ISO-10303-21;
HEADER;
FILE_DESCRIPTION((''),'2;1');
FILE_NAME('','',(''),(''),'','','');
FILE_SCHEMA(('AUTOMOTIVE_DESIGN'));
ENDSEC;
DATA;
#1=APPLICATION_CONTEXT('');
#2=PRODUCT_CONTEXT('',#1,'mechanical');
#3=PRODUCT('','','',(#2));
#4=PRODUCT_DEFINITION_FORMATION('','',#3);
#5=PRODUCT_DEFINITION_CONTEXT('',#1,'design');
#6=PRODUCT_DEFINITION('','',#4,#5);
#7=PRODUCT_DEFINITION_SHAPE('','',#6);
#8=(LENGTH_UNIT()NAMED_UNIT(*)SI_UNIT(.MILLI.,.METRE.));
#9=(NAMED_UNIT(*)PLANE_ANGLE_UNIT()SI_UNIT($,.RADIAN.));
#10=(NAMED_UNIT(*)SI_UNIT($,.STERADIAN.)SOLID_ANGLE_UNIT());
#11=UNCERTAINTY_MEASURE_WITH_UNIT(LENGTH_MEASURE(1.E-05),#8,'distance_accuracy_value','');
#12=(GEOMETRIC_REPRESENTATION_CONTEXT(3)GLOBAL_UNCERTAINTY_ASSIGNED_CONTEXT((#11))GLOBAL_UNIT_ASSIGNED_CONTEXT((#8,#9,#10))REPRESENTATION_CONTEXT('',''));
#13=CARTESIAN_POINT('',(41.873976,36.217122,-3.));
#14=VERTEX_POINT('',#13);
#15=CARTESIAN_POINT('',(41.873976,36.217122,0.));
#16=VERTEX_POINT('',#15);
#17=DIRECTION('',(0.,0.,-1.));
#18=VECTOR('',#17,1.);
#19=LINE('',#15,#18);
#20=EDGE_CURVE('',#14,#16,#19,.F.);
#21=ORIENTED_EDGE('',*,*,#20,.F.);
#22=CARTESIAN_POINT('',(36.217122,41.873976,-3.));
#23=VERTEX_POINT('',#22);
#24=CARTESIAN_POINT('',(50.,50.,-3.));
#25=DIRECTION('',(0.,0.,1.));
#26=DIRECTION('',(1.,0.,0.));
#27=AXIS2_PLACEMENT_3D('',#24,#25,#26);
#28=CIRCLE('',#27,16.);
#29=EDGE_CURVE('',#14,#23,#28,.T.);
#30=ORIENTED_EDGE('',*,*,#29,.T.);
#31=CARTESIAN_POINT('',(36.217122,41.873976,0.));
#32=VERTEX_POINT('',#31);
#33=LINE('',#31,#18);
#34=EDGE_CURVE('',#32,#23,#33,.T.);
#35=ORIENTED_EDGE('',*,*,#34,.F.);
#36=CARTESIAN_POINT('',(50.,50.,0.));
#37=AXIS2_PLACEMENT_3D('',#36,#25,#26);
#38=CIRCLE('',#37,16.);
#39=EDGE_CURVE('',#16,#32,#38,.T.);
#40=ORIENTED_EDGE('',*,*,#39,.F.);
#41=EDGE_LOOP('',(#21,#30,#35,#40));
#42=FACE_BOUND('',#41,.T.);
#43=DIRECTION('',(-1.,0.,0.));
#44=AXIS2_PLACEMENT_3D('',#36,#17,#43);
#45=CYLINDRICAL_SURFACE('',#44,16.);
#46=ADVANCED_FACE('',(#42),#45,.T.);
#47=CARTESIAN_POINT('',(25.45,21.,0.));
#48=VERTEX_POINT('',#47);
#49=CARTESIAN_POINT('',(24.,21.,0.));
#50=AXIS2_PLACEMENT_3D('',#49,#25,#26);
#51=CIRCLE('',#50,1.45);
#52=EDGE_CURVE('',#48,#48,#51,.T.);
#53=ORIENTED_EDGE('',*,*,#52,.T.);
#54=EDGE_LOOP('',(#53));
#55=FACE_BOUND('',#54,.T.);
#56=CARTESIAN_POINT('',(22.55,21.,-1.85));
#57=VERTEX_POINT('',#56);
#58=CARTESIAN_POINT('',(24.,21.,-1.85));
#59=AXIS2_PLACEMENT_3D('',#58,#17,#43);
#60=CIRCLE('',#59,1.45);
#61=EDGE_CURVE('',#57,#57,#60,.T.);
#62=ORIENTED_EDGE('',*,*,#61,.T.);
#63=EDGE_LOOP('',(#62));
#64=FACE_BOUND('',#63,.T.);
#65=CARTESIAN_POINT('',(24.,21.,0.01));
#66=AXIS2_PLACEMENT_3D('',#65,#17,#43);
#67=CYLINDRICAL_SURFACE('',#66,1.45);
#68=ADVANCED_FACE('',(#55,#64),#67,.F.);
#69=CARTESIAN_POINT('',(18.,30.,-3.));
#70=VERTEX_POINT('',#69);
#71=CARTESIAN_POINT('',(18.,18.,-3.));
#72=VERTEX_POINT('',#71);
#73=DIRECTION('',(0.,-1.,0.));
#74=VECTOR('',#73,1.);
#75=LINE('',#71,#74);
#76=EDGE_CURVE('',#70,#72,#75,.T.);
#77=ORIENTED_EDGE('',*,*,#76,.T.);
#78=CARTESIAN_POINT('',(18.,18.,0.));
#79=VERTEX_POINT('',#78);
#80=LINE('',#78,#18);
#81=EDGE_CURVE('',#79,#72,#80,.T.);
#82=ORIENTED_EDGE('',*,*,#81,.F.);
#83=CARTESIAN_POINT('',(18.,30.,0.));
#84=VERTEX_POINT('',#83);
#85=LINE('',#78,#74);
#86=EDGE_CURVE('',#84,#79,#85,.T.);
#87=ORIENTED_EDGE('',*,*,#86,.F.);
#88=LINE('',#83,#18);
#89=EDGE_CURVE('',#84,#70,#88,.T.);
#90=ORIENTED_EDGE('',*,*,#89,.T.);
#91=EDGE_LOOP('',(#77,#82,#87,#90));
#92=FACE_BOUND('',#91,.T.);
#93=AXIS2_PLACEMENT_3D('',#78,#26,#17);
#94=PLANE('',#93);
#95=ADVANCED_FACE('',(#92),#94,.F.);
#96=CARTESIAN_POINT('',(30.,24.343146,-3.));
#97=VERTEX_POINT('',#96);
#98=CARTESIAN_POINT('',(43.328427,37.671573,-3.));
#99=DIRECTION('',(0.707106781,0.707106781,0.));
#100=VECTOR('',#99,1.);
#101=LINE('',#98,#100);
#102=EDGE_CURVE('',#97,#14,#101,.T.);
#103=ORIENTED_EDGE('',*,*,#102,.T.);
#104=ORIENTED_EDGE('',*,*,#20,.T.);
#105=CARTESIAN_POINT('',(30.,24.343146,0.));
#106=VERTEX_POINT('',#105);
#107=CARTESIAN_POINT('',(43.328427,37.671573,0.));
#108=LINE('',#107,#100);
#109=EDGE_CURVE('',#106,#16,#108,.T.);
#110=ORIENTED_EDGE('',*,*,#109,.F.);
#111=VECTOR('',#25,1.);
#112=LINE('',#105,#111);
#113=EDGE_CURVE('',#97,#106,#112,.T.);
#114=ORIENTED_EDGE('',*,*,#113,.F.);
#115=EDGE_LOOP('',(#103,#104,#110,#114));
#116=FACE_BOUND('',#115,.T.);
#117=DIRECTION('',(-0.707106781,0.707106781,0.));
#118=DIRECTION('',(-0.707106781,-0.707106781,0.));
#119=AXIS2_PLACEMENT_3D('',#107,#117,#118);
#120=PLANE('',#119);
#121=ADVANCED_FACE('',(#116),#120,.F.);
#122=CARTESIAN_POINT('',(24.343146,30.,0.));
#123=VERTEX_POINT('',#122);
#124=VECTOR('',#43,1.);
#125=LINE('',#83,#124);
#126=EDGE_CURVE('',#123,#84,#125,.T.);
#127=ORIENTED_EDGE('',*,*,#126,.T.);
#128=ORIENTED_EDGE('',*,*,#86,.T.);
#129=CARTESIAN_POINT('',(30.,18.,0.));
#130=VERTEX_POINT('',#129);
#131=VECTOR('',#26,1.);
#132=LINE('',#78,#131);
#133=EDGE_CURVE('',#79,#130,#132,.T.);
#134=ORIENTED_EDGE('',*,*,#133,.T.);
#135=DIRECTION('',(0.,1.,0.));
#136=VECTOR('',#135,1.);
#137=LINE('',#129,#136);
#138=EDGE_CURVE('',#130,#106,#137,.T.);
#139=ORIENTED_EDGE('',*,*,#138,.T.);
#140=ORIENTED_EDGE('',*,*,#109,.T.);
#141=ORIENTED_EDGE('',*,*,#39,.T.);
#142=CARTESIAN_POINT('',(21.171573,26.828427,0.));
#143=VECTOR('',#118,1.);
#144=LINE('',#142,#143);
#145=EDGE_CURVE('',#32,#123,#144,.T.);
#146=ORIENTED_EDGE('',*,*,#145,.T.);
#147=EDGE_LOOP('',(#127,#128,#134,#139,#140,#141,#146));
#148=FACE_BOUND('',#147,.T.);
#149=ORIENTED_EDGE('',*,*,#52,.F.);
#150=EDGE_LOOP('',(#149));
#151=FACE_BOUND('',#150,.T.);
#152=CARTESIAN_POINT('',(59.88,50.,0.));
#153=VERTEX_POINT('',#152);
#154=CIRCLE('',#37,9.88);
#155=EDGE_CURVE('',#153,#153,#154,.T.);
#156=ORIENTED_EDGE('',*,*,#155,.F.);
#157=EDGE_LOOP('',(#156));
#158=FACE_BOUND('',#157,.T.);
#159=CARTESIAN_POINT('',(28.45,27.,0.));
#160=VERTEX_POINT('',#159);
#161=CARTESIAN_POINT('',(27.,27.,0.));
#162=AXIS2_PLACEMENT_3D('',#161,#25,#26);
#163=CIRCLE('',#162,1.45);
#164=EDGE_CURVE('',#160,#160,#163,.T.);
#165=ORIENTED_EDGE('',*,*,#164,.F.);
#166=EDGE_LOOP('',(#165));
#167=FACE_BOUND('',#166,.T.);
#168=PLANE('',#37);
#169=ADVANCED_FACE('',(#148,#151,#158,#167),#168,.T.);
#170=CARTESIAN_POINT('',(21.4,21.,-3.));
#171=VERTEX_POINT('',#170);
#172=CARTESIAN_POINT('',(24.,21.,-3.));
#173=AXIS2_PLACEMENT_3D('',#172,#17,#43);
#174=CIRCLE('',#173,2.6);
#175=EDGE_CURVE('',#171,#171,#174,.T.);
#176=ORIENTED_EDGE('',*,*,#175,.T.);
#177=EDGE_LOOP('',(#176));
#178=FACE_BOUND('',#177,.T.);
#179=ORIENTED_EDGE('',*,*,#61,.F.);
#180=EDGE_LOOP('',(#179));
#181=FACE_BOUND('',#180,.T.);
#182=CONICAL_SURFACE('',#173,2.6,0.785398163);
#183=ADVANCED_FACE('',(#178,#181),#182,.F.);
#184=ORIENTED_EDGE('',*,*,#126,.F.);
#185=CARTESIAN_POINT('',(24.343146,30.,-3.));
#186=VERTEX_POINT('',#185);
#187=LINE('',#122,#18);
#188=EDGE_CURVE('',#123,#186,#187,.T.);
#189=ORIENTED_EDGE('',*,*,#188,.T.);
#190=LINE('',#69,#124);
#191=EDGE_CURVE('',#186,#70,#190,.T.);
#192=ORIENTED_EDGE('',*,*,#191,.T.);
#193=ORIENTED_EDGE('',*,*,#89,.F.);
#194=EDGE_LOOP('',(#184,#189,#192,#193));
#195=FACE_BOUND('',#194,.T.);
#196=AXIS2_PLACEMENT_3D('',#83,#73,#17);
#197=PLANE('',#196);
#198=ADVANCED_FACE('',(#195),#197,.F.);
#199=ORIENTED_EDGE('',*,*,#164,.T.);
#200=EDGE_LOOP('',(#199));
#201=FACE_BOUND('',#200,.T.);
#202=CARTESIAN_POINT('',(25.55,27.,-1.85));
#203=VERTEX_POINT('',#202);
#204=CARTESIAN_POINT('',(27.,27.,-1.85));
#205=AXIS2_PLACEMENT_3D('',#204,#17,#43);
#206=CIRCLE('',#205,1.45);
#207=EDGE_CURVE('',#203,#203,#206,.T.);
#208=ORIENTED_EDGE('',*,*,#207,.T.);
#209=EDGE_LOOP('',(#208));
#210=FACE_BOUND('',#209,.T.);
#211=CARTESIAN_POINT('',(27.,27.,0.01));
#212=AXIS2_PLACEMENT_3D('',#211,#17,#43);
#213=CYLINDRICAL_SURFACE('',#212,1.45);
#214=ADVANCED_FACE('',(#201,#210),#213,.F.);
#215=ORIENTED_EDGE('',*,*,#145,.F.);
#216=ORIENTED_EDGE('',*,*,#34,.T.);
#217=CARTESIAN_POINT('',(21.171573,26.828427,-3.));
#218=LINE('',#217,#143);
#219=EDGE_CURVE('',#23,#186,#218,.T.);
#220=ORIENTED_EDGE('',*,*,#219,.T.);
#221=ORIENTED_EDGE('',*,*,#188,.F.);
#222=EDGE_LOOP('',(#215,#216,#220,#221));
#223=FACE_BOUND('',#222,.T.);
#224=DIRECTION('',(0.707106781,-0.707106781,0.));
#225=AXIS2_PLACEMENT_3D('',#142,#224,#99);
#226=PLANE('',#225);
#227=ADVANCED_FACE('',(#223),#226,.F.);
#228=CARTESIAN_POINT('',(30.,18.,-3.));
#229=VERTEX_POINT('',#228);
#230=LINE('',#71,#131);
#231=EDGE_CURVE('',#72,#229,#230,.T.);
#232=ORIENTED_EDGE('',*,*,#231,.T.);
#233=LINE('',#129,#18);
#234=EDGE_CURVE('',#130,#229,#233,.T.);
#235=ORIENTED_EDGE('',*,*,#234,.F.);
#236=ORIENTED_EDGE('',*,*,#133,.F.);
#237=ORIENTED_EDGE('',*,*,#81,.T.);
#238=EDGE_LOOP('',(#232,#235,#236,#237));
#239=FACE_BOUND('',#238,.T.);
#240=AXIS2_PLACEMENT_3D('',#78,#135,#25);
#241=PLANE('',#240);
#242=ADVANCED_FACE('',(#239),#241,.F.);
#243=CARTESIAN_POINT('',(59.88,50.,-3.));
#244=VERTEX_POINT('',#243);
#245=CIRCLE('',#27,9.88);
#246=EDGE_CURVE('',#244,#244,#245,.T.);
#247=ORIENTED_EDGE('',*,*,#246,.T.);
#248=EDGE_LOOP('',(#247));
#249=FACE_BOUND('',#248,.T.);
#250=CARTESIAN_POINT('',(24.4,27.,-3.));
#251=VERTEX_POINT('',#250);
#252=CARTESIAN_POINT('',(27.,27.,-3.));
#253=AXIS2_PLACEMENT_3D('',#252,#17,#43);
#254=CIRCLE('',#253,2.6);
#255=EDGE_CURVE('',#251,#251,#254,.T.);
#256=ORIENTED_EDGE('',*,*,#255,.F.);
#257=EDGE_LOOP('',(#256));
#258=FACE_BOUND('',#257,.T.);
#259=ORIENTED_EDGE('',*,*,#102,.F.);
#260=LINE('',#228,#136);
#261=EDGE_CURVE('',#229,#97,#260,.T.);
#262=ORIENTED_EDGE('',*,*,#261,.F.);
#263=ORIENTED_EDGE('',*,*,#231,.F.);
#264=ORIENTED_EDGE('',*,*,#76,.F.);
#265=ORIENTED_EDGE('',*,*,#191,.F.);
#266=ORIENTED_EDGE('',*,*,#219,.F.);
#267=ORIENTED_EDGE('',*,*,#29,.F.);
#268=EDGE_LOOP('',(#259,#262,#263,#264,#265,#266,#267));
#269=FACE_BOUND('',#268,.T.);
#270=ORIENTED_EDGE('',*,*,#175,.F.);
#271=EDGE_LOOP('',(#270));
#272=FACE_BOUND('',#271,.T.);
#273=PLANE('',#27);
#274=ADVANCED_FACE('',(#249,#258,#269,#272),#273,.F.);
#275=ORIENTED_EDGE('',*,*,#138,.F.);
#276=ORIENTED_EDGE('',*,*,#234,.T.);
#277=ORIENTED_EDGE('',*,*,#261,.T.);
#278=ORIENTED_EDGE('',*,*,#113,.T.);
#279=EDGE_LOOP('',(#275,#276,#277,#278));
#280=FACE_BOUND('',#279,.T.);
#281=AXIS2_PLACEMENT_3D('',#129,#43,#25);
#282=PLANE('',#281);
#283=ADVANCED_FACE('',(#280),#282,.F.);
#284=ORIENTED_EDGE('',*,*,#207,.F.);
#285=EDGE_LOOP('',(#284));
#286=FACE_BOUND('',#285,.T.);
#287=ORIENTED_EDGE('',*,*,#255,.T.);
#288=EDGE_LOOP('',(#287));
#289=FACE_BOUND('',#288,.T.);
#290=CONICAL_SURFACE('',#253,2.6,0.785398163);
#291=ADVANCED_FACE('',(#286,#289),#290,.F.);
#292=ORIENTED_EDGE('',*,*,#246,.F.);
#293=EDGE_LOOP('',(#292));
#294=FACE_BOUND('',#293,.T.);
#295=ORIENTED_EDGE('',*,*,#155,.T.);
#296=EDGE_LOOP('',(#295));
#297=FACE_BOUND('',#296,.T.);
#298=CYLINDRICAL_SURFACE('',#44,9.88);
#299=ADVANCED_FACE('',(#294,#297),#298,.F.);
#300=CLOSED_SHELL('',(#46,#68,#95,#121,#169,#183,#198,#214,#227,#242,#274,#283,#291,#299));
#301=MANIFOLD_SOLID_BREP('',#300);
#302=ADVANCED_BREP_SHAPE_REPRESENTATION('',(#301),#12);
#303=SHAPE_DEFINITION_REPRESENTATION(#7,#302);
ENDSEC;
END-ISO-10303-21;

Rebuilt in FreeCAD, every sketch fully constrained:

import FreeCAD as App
import Part
import Sketcher
Q = App.Units.Quantity


def faces_at(feature, points):
    """Names of the faces that lie closest to the given points."""
    faces = feature.Shape.Faces
    near = lambda p: min(range(len(faces)), key=lambda i: faces[i].distToShape(Part.Vertex(*p))[0])
    return sorted({f"Face{near(p) + 1}" for p in points})


def add_polygon(sketch, points):
    """Adds a closed chain of lines whose ends are joined by coincident constraints."""
    first, n = sketch.GeometryCount, len(points)
    for a, b in zip(points, points[1:] + points[:1]):
        sketch.addGeometry(Part.LineSegment(App.Vector(*a, 0), App.Vector(*b, 0)), False)
    for i in range(n):
        sketch.addConstraint(Sketcher.Constraint("Coincident", first + i, 2, first + (i + 1) % n, 1))

doc = App.newDocument("Part")
body = doc.addObject("PartDesign::Body", "Body")

# Sketch on XY plane
sketch1 = doc.addObject("Sketcher::SketchObject", "Sketch")
body.addObject(sketch1)
sketch1.AttachmentSupport = (doc.XY_Plane, [""])
sketch1.MapMode = "FlatFace"
sketch1.AttachmentOffset = App.Placement(App.Vector(0, 0, -3), App.Rotation())
sketch1.addGeometry([
    Part.Circle(App.Vector(50, 50, 0), App.Vector(0, 0, 1), 16),
    Part.Circle(App.Vector(50, 50, 0), App.Vector(0, 0, 1), 9.88),
], False)
sketch1.addConstraint([
    Sketcher.Constraint("Coincident", 1, 3, 0, 3),
    Sketcher.Constraint("Diameter", 0, Q("32 mm")),
    Sketcher.Constraint("Diameter", 1, Q("19.76 mm")),
    Sketcher.Constraint("DistanceX", -1, 1, 0, 3, Q("50 mm")),
    Sketcher.Constraint("DistanceY", -1, 1, 0, 3, Q("50 mm")),
])
pad1 = doc.addObject("PartDesign::Pad", "Pad")
body.addObject(pad1)
pad1.Profile = sketch1
pad1.Length = 3

# Sketch on XY plane
sketch2 = doc.addObject("Sketcher::SketchObject", "Sketch001")
body.addObject(sketch2)
sketch2.AttachmentSupport = (doc.XY_Plane, [""])
sketch2.MapMode = "FlatFace"
sketch2.AttachmentOffset = App.Placement(App.Vector(0, 0, -3), App.Rotation())
add_polygon(sketch2, [(37.671573, 43.328427), (21.171573, 26.828427), (26.828427, 21.171573), (43.328427, 37.671573)])  # lines 0-3
sketch2.addConstraint([
    Sketcher.Constraint("Perpendicular", 0, 1),
    Sketcher.Constraint("Perpendicular", 1, 2),
    Sketcher.Constraint("Perpendicular", 2, 3),
    Sketcher.Constraint("Angle", 0, Q("-135 deg")),
    Sketcher.Constraint("Distance", 1, Q("8 mm")),
    Sketcher.Constraint("DistanceX", 1, 2, 2, 2, Q("16.5 mm")),
    Sketcher.Constraint("DistanceX", -1, 1, 0, 2, Q("21.171573 mm")),
    Sketcher.Constraint("DistanceY", -1, 1, 0, 2, Q("26.828427 mm")),
])
pad2 = doc.addObject("PartDesign::Pad", "Pad001")
body.addObject(pad2)
pad2.Profile = sketch2
pad2.Length = 3

# Sketch on XY plane
sketch3 = doc.addObject("Sketcher::SketchObject", "Sketch002")
body.addObject(sketch3)
sketch3.AttachmentSupport = (doc.XY_Plane, [""])
sketch3.MapMode = "FlatFace"
sketch3.AttachmentOffset = App.Placement(App.Vector(0, 0, -3), App.Rotation())
add_polygon(sketch3, [(18, 30), (18, 18), (30, 18), (30, 30)])  # lines 0-3
sketch3.addConstraint([
    Sketcher.Constraint("Vertical", 0),
    Sketcher.Constraint("Horizontal", 1),
    Sketcher.Constraint("Vertical", 2),
    Sketcher.Constraint("Horizontal", 3),
    Sketcher.Constraint("Equal", 3, 0),
    Sketcher.Constraint("DistanceX", 1, 1, 1, 2, Q("12 mm")),
    Sketcher.Constraint("DistanceX", -1, 1, 0, 2, Q("18 mm")),
    Sketcher.Constraint("DistanceY", -1, 1, 0, 2, Q("18 mm")),
])
pad3 = doc.addObject("PartDesign::Pad", "Pad002")
body.addObject(pad3)
pad3.Profile = sketch3
pad3.Length = 3

# Sketch on XY plane
sketch4 = doc.addObject("Sketcher::SketchObject", "Sketch003")
body.addObject(sketch4)
sketch4.AttachmentSupport = (doc.XY_Plane, [""])
sketch4.MapMode = "FlatFace"
sketch4.AttachmentOffset = App.Placement(App.Vector(0, 0, -3), App.Rotation())
sketch4.addGeometry([
    Part.Circle(App.Vector(24, 21, 0), App.Vector(0, 0, 1), 1.45),
    Part.Circle(App.Vector(27, 27, 0), App.Vector(0, 0, 1), 1.45),
], False)
sketch4.addConstraint([
    Sketcher.Constraint("Equal", 0, 1),
    Sketcher.Constraint("Diameter", 0, Q("2.9 mm")),
    Sketcher.Constraint("DistanceX", -1, 1, 0, 3, Q("24 mm")),
    Sketcher.Constraint("DistanceY", -1, 1, 0, 3, Q("21 mm")),
    Sketcher.Constraint("DistanceX", -1, 1, 1, 3, Q("27 mm")),
    Sketcher.Constraint("DistanceY", -1, 1, 1, 3, Q("27 mm")),
])
pocket1 = doc.addObject("PartDesign::Pocket", "Pocket")
body.addObject(pocket1)
pocket1.Profile = sketch4
pocket1.Length = 3.01
pocket1.Reversed = True
body2 = doc.addObject("PartDesign::Body", "Body001")

# Sketch on XY plane
sketch5 = doc.addObject("Sketcher::SketchObject", "Sketch004")
body2.addObject(sketch5)
sketch5.AttachmentSupport = (doc.getObject("XY_Plane001"), [""])
sketch5.MapMode = "FlatFace"
sketch5.AttachmentOffset = App.Placement(App.Vector(0, 0, -3), App.Rotation())
sketch5.addGeometry(Part.Circle(App.Vector(24, 21, 0), App.Vector(0, 0, 1), 2.6), False)
sketch5.addConstraint([
    Sketcher.Constraint("Diameter", 0, Q("5.2 mm")),
    Sketcher.Constraint("DistanceX", -1, 1, 0, 3, Q("24 mm")),
    Sketcher.Constraint("DistanceY", -1, 1, 0, 3, Q("21 mm")),
])
pad4 = doc.addObject("PartDesign::Pad", "Pad003")
body2.addObject(pad4)
pad4.Profile = sketch5
pad4.Length = 1.15
doc.recompute()

datumplane = doc.addObject("PartDesign::Plane", "DatumPlane")
body2.addObject(datumplane)
datumplane.AttachmentSupport = (doc.getObject("XY_Plane001"), [""])
datumplane.MapMode = "FlatFace"
datumplane.AttachmentOffset = App.Placement(App.Vector(0, 0, -3), App.Rotation())
draft = doc.addObject("PartDesign::Draft", "Draft")
body2.addObject(draft)
draft.Base = (pad4, faces_at(pad4, [(26.6, 21, -2.425)]))
draft.NeutralPlane = (datumplane, [""])
draft.Angle = 45
draft.Reversed = False
doc.recompute()

boolean = doc.addObject("PartDesign::Boolean", "Boolean")
body.addObject(boolean)
boolean.Type = "Cut"
boolean.addObjects([body2])
body3 = doc.addObject("PartDesign::Body", "Body002")

# Sketch on XY plane
sketch6 = doc.addObject("Sketcher::SketchObject", "Sketch005")
body3.addObject(sketch6)
sketch6.AttachmentSupport = (doc.getObject("XY_Plane002"), [""])
sketch6.MapMode = "FlatFace"
sketch6.AttachmentOffset = App.Placement(App.Vector(0, 0, -3), App.Rotation())
sketch6.addGeometry(Part.Circle(App.Vector(27, 27, 0), App.Vector(0, 0, 1), 2.6), False)
sketch6.addConstraint([
    Sketcher.Constraint("Diameter", 0, Q("5.2 mm")),
    Sketcher.Constraint("DistanceX", -1, 1, 0, 3, Q("27 mm")),
    Sketcher.Constraint("DistanceY", -1, 1, 0, 3, Q("27 mm")),
])
pad5 = doc.addObject("PartDesign::Pad", "Pad004")
body3.addObject(pad5)
pad5.Profile = sketch6
pad5.Length = 1.15
doc.recompute()

datumplane2 = doc.addObject("PartDesign::Plane", "DatumPlane001")
body3.addObject(datumplane2)
datumplane2.AttachmentSupport = (doc.getObject("XY_Plane002"), [""])
datumplane2.MapMode = "FlatFace"
datumplane2.AttachmentOffset = App.Placement(App.Vector(0, 0, -3), App.Rotation())
draft2 = doc.addObject("PartDesign::Draft", "Draft001")
body3.addObject(draft2)
draft2.Base = (pad5, faces_at(pad5, [(29.6, 27, -2.425)]))
draft2.NeutralPlane = (datumplane2, [""])
draft2.Angle = 45
draft2.Reversed = False
doc.recompute()

boolean2 = doc.addObject("PartDesign::Boolean", "Boolean001")
body.addObject(boolean2)
boolean2.Type = "Cut"
boolean2.addObjects([body3])

doc.recompute()
